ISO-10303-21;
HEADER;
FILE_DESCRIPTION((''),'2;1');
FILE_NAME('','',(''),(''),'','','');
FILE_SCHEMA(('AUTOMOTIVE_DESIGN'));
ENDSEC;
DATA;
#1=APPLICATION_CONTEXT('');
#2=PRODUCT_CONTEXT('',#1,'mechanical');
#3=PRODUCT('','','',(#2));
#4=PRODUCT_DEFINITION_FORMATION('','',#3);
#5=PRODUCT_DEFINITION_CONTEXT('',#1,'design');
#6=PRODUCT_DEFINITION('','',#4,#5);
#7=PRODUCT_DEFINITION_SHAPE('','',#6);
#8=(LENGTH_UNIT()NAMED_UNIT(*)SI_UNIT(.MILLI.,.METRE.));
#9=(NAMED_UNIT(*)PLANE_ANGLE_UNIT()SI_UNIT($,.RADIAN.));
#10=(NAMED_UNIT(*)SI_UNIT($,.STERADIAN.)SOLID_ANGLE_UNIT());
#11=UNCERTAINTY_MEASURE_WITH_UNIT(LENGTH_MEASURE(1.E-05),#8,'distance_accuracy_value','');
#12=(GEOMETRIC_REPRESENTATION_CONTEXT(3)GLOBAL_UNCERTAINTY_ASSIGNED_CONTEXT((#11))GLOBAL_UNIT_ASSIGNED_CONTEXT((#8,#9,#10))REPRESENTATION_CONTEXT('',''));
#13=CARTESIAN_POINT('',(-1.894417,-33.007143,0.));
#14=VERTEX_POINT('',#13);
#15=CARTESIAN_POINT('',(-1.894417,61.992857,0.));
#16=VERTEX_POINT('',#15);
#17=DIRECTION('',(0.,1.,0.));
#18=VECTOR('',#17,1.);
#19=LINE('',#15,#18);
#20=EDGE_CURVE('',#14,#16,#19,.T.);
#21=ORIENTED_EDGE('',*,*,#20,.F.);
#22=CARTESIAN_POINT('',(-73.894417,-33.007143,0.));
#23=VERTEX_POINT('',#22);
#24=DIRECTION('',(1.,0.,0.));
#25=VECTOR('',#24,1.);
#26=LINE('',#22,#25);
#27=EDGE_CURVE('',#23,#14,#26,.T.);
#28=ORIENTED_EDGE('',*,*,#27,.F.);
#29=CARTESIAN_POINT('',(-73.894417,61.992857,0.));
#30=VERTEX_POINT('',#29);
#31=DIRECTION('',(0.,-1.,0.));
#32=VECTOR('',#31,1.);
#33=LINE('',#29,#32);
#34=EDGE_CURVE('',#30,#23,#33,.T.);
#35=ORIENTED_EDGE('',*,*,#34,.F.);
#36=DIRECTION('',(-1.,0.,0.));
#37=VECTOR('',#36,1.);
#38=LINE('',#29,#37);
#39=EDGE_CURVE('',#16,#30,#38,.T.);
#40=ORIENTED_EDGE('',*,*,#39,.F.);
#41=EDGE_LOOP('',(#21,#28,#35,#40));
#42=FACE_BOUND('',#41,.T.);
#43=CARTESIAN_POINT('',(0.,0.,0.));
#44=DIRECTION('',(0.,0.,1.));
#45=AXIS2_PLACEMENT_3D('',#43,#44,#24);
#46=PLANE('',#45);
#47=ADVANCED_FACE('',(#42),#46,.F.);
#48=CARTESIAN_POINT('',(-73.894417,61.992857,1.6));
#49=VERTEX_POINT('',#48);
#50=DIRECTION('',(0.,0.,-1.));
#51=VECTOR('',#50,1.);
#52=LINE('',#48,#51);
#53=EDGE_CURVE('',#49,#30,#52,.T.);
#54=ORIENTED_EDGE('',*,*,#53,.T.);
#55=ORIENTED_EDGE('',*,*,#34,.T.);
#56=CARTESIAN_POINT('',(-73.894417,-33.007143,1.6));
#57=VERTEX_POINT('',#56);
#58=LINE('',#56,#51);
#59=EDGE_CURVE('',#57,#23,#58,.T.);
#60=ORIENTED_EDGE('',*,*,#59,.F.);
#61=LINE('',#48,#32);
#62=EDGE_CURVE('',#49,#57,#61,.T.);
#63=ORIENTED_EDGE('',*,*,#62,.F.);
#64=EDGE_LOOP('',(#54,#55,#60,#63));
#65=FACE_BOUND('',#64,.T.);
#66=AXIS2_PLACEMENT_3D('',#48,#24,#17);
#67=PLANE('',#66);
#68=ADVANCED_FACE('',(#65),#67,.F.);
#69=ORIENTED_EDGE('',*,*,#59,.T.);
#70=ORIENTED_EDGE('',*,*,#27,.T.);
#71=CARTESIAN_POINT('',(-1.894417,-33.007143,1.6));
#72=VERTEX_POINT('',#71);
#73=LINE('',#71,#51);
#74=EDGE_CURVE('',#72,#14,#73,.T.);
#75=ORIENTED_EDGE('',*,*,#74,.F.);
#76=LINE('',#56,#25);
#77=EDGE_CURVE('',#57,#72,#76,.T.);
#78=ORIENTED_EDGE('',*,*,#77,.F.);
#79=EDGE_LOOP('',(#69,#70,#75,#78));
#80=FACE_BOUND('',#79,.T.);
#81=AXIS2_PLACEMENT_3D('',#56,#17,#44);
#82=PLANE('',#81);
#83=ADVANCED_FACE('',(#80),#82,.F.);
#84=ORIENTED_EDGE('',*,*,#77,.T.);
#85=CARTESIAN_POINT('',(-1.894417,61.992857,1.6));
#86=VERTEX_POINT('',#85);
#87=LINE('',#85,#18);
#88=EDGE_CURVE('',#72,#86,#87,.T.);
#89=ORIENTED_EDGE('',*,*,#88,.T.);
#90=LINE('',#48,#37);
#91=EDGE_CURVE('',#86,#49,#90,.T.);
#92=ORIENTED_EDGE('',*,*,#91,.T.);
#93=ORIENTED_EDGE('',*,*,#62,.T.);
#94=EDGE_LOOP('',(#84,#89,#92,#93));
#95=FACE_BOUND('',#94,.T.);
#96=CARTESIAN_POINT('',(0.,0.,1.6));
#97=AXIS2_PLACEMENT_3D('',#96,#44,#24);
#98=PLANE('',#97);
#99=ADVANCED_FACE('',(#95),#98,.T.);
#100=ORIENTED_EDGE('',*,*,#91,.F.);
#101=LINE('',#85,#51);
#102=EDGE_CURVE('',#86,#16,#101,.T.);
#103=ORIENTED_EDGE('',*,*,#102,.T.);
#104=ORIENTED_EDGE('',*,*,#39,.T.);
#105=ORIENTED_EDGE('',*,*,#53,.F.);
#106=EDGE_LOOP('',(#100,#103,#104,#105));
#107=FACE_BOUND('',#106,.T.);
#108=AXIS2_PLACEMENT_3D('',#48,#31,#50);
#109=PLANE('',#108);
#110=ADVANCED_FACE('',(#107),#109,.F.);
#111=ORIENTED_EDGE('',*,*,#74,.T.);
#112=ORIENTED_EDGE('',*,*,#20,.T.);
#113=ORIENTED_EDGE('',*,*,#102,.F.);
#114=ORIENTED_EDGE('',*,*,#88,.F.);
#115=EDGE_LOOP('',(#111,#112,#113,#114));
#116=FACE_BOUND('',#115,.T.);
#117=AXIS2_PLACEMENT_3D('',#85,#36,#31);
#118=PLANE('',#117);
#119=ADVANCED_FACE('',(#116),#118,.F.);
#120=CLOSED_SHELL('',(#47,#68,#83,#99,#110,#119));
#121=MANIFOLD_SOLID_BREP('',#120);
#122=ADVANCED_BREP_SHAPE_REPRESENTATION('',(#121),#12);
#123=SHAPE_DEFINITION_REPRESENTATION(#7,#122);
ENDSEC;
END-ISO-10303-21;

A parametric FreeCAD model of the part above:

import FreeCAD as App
import Part
import Sketcher

V = App.Vector

doc = App.newDocument("Part")
params = doc.addObject("Spreadsheet::Sheet", "Params")
for row, (alias, value) in enumerate([
    ("sketch1_width", "72 mm"),
    ("sketch1_height", "95 mm"),
    ("pad1_length", "1.6 mm"),
], start=1):
    params.set(f"A{row}", alias)
    params.set(f"B{row}", "=" + value)
    params.setAlias(f"B{row}", alias)

body = doc.addObject("PartDesign::Body", "Body")

# Sketch on XY plane
sketch1 = doc.addObject("Sketcher::SketchObject", "Sketch")
body.addObject(sketch1)
sketch1.AttachmentSupport = (doc.XY_Plane, [""])
sketch1.MapMode = "FlatFace"
sketch1.addGeometry([
    Part.LineSegment(V(-74, 62, 0), V(-74, -33, 0)),
    Part.LineSegment(V(-74, -33, 0), V(-2, -33, 0)),
    Part.LineSegment(V(-2, -33, 0), V(-2, 62, 0)),
    Part.LineSegment(V(-2, 62, 0), V(-74, 62, 0)),
], False)
sketch1.addConstraint([
    Sketcher.Constraint("Coincident", 0, 2, 1, 1),
    Sketcher.Constraint("Coincident", 1, 2, 2, 1),
    Sketcher.Constraint("Coincident", 2, 2, 3, 1),
    Sketcher.Constraint("Coincident", 3, 2, 0, 1),
    Sketcher.Constraint("Vertical", 0),
    Sketcher.Constraint("Horizontal", 1),
    Sketcher.Constraint("Vertical", 2),
    Sketcher.Constraint("Horizontal", 3),
    Sketcher.Constraint("DistanceX", 1, 1, 1, 2, 72.0),
    Sketcher.Constraint("DistanceY", 0, 2, 0, 1, 95.0),
    Sketcher.Constraint("DistanceX", 0, 2, -1, 1, 73.894417),
    Sketcher.Constraint("DistanceY", 0, 2, -1, 1, 33.007143),
])
sketch1.setExpression("Constraints[8]", "Params.sketch1_width")
sketch1.setExpression("Constraints[9]", "Params.sketch1_height")
pad1 = doc.addObject("PartDesign::Pad", "Pad")
body.addObject(pad1)
pad1.Profile = sketch1
pad1.setExpression("Length", "Params.pad1_length")

doc.recompute()
